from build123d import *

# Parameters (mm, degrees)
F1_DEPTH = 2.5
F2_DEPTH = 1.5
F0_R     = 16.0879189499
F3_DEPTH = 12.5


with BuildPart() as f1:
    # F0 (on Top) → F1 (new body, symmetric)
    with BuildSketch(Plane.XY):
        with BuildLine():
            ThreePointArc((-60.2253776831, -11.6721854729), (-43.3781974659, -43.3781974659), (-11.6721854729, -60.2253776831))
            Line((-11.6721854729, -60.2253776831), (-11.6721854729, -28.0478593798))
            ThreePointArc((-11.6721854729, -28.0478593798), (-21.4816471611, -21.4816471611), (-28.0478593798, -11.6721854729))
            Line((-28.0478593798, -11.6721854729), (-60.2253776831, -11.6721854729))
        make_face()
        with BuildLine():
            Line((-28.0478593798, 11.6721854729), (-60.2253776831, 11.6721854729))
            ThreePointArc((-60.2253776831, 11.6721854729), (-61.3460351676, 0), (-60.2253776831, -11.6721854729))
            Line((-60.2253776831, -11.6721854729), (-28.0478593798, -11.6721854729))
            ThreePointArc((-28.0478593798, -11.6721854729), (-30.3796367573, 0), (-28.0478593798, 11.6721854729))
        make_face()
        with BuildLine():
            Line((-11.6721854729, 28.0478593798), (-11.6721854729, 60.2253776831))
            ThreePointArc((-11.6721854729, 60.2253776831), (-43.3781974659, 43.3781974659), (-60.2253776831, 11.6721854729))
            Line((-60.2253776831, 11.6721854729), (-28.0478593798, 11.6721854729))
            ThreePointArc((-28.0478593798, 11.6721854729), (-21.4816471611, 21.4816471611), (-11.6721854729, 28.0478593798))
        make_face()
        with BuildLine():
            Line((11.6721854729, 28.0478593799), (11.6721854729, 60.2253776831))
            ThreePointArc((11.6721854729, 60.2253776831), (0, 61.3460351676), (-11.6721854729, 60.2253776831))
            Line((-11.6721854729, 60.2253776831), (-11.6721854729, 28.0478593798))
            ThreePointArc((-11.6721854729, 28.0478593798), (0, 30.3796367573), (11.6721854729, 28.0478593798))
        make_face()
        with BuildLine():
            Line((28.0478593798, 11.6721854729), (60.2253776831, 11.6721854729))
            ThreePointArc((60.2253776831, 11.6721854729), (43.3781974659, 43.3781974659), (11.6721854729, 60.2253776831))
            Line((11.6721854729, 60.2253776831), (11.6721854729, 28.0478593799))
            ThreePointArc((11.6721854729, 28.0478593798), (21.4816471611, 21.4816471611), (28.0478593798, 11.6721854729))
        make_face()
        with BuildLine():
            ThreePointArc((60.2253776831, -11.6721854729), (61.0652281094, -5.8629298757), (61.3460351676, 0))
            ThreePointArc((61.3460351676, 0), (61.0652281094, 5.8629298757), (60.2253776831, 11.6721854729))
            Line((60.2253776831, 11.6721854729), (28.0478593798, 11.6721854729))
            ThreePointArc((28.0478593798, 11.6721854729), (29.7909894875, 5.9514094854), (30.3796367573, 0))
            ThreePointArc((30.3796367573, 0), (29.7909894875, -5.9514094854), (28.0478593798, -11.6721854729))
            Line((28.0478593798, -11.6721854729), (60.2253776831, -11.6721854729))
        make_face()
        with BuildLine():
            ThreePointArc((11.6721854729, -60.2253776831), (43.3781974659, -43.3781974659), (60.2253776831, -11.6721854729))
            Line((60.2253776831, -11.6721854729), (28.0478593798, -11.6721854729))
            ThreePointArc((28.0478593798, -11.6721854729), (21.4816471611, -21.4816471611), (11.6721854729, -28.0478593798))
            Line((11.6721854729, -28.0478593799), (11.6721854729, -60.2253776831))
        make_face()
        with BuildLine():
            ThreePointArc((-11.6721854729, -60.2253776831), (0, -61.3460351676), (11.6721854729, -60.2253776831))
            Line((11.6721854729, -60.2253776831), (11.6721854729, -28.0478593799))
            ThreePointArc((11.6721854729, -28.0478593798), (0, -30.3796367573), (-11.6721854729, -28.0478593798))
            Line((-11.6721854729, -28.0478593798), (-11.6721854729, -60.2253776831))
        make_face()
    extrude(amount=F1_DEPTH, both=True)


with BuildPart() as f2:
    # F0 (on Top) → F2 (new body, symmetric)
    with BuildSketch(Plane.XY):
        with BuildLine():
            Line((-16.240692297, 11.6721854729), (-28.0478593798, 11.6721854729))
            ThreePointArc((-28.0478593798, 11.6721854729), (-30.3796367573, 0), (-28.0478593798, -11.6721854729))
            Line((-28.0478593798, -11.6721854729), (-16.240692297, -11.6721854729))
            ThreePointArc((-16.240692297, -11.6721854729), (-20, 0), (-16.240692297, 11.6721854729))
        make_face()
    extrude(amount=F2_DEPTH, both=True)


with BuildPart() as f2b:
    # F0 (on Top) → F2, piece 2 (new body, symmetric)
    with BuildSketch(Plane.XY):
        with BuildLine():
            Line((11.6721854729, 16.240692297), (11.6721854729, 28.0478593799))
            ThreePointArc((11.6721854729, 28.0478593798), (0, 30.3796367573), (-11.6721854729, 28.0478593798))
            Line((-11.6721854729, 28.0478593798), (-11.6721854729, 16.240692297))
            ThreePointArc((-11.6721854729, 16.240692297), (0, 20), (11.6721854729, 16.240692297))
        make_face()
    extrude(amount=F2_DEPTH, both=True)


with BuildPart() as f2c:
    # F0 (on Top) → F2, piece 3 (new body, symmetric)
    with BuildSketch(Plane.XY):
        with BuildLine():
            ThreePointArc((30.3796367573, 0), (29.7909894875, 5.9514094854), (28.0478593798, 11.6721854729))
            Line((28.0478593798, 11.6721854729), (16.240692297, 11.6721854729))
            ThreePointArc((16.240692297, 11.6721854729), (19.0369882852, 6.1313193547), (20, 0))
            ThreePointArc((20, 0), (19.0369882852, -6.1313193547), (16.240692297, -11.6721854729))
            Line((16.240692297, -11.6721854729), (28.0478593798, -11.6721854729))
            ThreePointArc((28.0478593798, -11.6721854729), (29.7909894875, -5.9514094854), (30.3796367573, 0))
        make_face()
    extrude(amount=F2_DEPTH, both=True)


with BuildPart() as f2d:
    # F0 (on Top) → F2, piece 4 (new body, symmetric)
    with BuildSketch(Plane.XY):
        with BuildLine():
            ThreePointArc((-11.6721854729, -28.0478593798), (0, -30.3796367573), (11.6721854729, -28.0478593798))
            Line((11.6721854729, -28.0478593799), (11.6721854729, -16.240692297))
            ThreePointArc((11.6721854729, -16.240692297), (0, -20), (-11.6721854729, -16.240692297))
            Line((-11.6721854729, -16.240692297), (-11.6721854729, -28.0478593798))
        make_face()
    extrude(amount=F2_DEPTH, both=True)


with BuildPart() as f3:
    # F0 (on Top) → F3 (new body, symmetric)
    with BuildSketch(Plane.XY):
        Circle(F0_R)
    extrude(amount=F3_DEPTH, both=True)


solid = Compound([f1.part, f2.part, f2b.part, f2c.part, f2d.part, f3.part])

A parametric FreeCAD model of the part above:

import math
import FreeCAD as App
import Part
import Sketcher

V = App.Vector

doc = App.newDocument("Part")
body = doc.addObject("PartDesign::Body", "Body")

# Sketch on XY plane
sketch1 = body.newObject("Sketcher::SketchObject", "Sketch")
sketch1.AttachmentSupport = (doc.getObject("XY_Plane"), [""])
sketch1.MapMode = "FlatFace"
sketch1.addGeometry(Part.ArcOfCircle(Part.Circle(V(0, 0, 0), V(0, 0, 1), 61), math.radians(-169), math.radians(-101)), False)
sketch1.addGeometry(Part.ArcOfCircle(Part.Circle(V(0, 0, 0), V(0, 0, 1), 61), math.radians(-101), math.radians(-79)), False)
sketch1.addGeometry(Part.ArcOfCircle(Part.Circle(V(0, 0, 0), V(0, 0, 1), 61), math.radians(-79), math.radians(-11)), False)
sketch1.addGeometry(Part.ArcOfCircle(Part.Circle(V(0, 0, 0), V(0, 0, 1), 61), math.radians(-10.97), math.radians(0)), False)
sketch1.addGeometry(Part.ArcOfCircle(Part.Circle(V(0, 0, 0), V(0, 0, 1), 61), math.radians(0), math.radians(10.97)), False)
sketch1.addGeometry(Part.ArcOfCircle(Part.Circle(V(0, 0, 0), V(0, 0, 1), 61), math.radians(11), math.radians(79)), False)
sketch1.addGeometry(Part.ArcOfCircle(Part.Circle(V(0, 0, 0), V(0, 0, 1), 61), math.radians(79), math.radians(101)), False)
sketch1.addGeometry(Part.ArcOfCircle(Part.Circle(V(0, 0, 0), V(0, 0, 1), 61), math.radians(101), math.radians(169)), False)
sketch1.addGeometry(Part.ArcOfCircle(Part.Circle(V(0, 0, 0), V(0, 0, 1), 61), math.radians(169), math.radians(191)), False)
sketch1.addGeometry(Part.ArcOfCircle(Part.Circle(V(0, 0, 0), V(0, 0, 1), 30), math.radians(-157), math.radians(-113)), False)
sketch1.addGeometry(Part.ArcOfCircle(Part.Circle(V(0, 0, 0), V(0, 0, 1), 30), math.radians(157), math.radians(203)), False)
sketch1.addGeometry(Part.ArcOfCircle(Part.Circle(V(0, 0, 0), V(0, 0, 1), 30), math.radians(113), math.radians(157)), False)
sketch1.addGeometry(Part.ArcOfCircle(Part.Circle(V(0, 0, 0), V(0, 0, 1), 30), math.radians(67), math.radians(113)), False)
sketch1.addGeometry(Part.ArcOfCircle(Part.Circle(V(0, 0, 0), V(0, 0, 1), 30), math.radians(23), math.radians(67)), False)
sketch1.addGeometry(Part.ArcOfCircle(Part.Circle(V(0, 0, 0), V(0, 0, 1), 30), math.radians(0), math.radians(23)), False)
sketch1.addGeometry(Part.ArcOfCircle(Part.Circle(V(0, 0, 0), V(0, 0, 1), 30), math.radians(-23), math.radians(0)), False)
sketch1.addGeometry(Part.ArcOfCircle(Part.Circle(V(0, 0, 0), V(0, 0, 1), 30), math.radians(-67), math.radians(-23)), False)
sketch1.addGeometry(Part.ArcOfCircle(Part.Circle(V(0, 0, 0), V(0, 0, 1), 30), math.radians(-113), math.radians(-67)), False)
sketch1.addConstraint(Sketcher.Constraint("Tangent", 0, 2, 1, 1))
sketch1.addConstraint(Sketcher.Constraint("Tangent", 1, 2, 2, 1))
sketch1.addConstraint(Sketcher.Constraint("Tangent", 2, 2, 3, 1))
sketch1.addConstraint(Sketcher.Constraint("Tangent", 3, 2, 4, 1))
sketch1.addConstraint(Sketcher.Constraint("Tangent", 4, 2, 5, 1))
sketch1.addConstraint(Sketcher.Constraint("Tangent", 5, 2, 6, 1))
sketch1.addConstraint(Sketcher.Constraint("Tangent", 6, 2, 7, 1))
sketch1.addConstraint(Sketcher.Constraint("Tangent", 7, 2, 8, 1))
sketch1.addConstraint(Sketcher.Constraint("Tangent", 8, 2, 0, 1))
sketch1.addConstraint(Sketcher.Constraint("Tangent", 9, 1, 10, 2))
sketch1.addConstraint(Sketcher.Constraint("Tangent", 10, 1, 11, 2))
sketch1.addConstraint(Sketcher.Constraint("Tangent", 11, 1, 12, 2))
sketch1.addConstraint(Sketcher.Constraint("Tangent", 12, 1, 13, 2))
sketch1.addConstraint(Sketcher.Constraint("Tangent", 13, 1, 14, 2))
sketch1.addConstraint(Sketcher.Constraint("Tangent", 14, 1, 15, 2))
sketch1.addConstraint(Sketcher.Constraint("Tangent", 15, 1, 16, 2))
sketch1.addConstraint(Sketcher.Constraint("Tangent", 16, 1, 17, 2))
sketch1.addConstraint(Sketcher.Constraint("Tangent", 17, 1, 9, 2))
sketch1.addConstraint(Sketcher.Constraint("Coincident", 0, 3, -1, 1))
sketch1.addConstraint(Sketcher.Constraint("Coincident", 2, 3, -1, 1))
sketch1.addConstraint(Sketcher.Constraint("Coincident", 4, 3, -1, 1))
sketch1.addConstraint(Sketcher.Constraint("Coincident", 6, 3, -1, 1))
sketch1.addConstraint(Sketcher.Constraint("Coincident", 9, 3, -1, 1))
sketch1.addConstraint(Sketcher.Constraint("Coincident", 11, 3, -1, 1))
sketch1.addConstraint(Sketcher.Constraint("Coincident", 13, 3, -1, 1))
sketch1.addConstraint(Sketcher.Constraint("Coincident", 15, 3, -1, 1))
sketch1.addConstraint(Sketcher.Constraint("PointOnObject", 3, 2, -1))
sketch1.addConstraint(Sketcher.Constraint("PointOnObject", 14, 1, -1))
sketch1.addConstraint(Sketcher.Constraint("Horizontal", 0, 2, 1, 2))
sketch1.addConstraint(Sketcher.Constraint("Horizontal", 5, 2, 6, 2))
sketch1.addConstraint(Sketcher.Constraint("Horizontal", 4, 2, 7, 2))
sketch1.addConstraint(Sketcher.Constraint("Horizontal", 2, 2, 8, 2))
sketch1.addConstraint(Sketcher.Constraint("Horizontal", 8, 2, 9, 1))
sketch1.addConstraint(Sketcher.Constraint("Horizontal", 7, 2, 10, 1))
sketch1.addConstraint(Sketcher.Constraint("Horizontal", 11, 1, 12, 1))
sketch1.addConstraint(Sketcher.Constraint("Horizontal", 10, 1, 13, 1))
sketch1.addConstraint(Sketcher.Constraint("Horizontal", 9, 1, 15, 1))
sketch1.addConstraint(Sketcher.Constraint("Horizontal", 16, 1, 17, 1))
sketch1.addConstraint(Sketcher.Constraint("Vertical", 2, 2, 4, 2))
sketch1.addConstraint(Sketcher.Constraint("Vertical", 1, 2, 5, 2))
sketch1.addConstraint(Sketcher.Constraint("Vertical", 6, 2, 11, 1))
sketch1.addConstraint(Sketcher.Constraint("Vertical", 12, 1, 16, 1))
sketch1.addConstraint(Sketcher.Constraint("Radius", 0, 61.346035))
sketch1.addConstraint(Sketcher.Constraint("Radius", 9, 30.379637))
sketch1.addConstraint(Sketcher.Constraint("DistanceX", 9, 1, -1, 1, 28.047859))
sketch1.addConstraint(Sketcher.Constraint("DistanceY", -1, 1, 11, 1, 28.047859))
pad1 = body.newObject("PartDesign::Pad", "Pad")
pad1.Profile = sketch1
pad1.Length = 5
pad1.Midplane = True
body2 = doc.addObject("PartDesign::Body", "Body001")

# Sketch on XY plane
sketch2 = body2.newObject("Sketcher::SketchObject", "Sketch001")
sketch2.AttachmentSupport = (doc.getObject("XY_Plane001"), [""])
sketch2.MapMode = "FlatFace"
sketch2.addGeometry(Part.LineSegment(V(-16, 12, 0), V(-28, 12, 0)), False)
sketch2.addGeometry(Part.ArcOfCircle(Part.Circle(V(0, 0, 0), V(0, 0, 1), 30), math.radians(157), math.radians(203)), False)
sketch2.addGeometry(Part.LineSegment(V(-28, -12, 0), V(-16, -12, 0)), False)
sketch2.addGeometry(Part.ArcOfCircle(Part.Circle(V(0, 0, 0), V(0, 0, 1), 20), math.radians(144), math.radians(216)), False)
sketch2.addConstraint(Sketcher.Constraint("Coincident", 0, 2, 1, 1))
sketch2.addConstraint(Sketcher.Constraint("Coincident", 1, 2, 2, 1))
sketch2.addConstraint(Sketcher.Constraint("Coincident", 2, 2, 3, 2))
sketch2.addConstraint(Sketcher.Constraint("Coincident", 3, 1, 0, 1))
sketch2.addConstraint(Sketcher.Constraint("Horizontal", 0))
sketch2.addConstraint(Sketcher.Constraint("Horizontal", 2))
sketch2.addConstraint(Sketcher.Constraint("Coincident", 1, 3, -1, 1))
sketch2.addConstraint(Sketcher.Constraint("Coincident", 3, 3, -1, 1))
sketch2.addConstraint(Sketcher.Constraint("Vertical", 0, 2, 1, 2))
sketch2.addConstraint(Sketcher.Constraint("Radius", 3, 20.0))
sketch2.addConstraint(Sketcher.Constraint("Radius", 1, 30.379637))
sketch2.addConstraint(Sketcher.Constraint("DistanceX", 0, 2, 0, 1, 11.807167))
pad2 = body2.newObject("PartDesign::Pad", "Pad001")
pad2.Profile = sketch2
pad2.Length = 3
pad2.Midplane = True
body3 = doc.addObject("PartDesign::Body", "Body002")

# Sketch on XY plane
sketch3 = body3.newObject("Sketcher::SketchObject", "Sketch002")
sketch3.AttachmentSupport = (doc.getObject("XY_Plane002"), [""])
sketch3.MapMode = "FlatFace"
sketch3.addGeometry(Part.LineSegment(V(12, 16, 0), V(12, 28, 0)), False)
sketch3.addGeometry(Part.ArcOfCircle(Part.Circle(V(0, 0, 0), V(0, 0, 1), 30), math.radians(67), math.radians(113)), False)
sketch3.addGeometry(Part.LineSegment(V(-12, 28, 0), V(-12, 16, 0)), False)
sketch3.addGeometry(Part.ArcOfCircle(Part.Circle(V(0, 0, 0), V(0, 0, 1), 20), math.radians(54), math.radians(126)), False)
sketch3.addConstraint(Sketcher.Constraint("Coincident", 0, 2, 1, 1))
sketch3.addConstraint(Sketcher.Constraint("Coincident", 1, 2, 2, 1))
sketch3.addConstraint(Sketcher.Constraint("Coincident", 2, 2, 3, 2))
sketch3.addConstraint(Sketcher.Constraint("Coincident", 3, 1, 0, 1))
sketch3.addConstraint(Sketcher.Constraint("Vertical", 0))
sketch3.addConstraint(Sketcher.Constraint("Vertical", 2))
sketch3.addConstraint(Sketcher.Constraint("Coincident", 1, 3, -1, 1))
sketch3.addConstraint(Sketcher.Constraint("Coincident", 3, 3, -1, 1))
sketch3.addConstraint(Sketcher.Constraint("Horizontal", 0, 2, 1, 2))
sketch3.addConstraint(Sketcher.Constraint("Radius", 3, 20.0))
sketch3.addConstraint(Sketcher.Constraint("Radius", 1, 30.379637))
sketch3.addConstraint(Sketcher.Constraint("DistanceY", 0, 1, 0, 2, 11.807167))
pad3 = body3.newObject("PartDesign::Pad", "Pad002")
pad3.Profile = sketch3
pad3.Length = 3
pad3.Midplane = True
body4 = doc.addObject("PartDesign::Body", "Body003")

# Sketch on XY plane
sketch4 = body4.newObject("Sketcher::SketchObject", "Sketch003")
sketch4.AttachmentSupport = (doc.getObject("XY_Plane003"), [""])
sketch4.MapMode = "FlatFace"
sketch4.addGeometry(Part.ArcOfCircle(Part.Circle(V(0, 0, 0), V(0, 0, 1), 30), math.radians(0), math.radians(23)), False)
sketch4.addGeometry(Part.LineSegment(V(28, 12, 0), V(16, 12, 0)), False)
sketch4.addGeometry(Part.ArcOfCircle(Part.Circle(V(0, 0, 0), V(0, 0, 1), 20), math.radians(0), math.radians(36)), False)
sketch4.addGeometry(Part.ArcOfCircle(Part.Circle(V(0, 0, 0), V(0, 0, 1), 20), math.radians(-36), math.radians(0)), False)
sketch4.addGeometry(Part.LineSegment(V(16, -12, 0), V(28, -12, 0)), False)
sketch4.addGeometry(Part.ArcOfCircle(Part.Circle(V(0, 0, 0), V(0, 0, 1), 30), math.radians(-23), math.radians(0)), False)
sketch4.addConstraint(Sketcher.Constraint("Coincident", 0, 2, 1, 1))
sketch4.addConstraint(Sketcher.Constraint("Coincident", 1, 2, 2, 2))
sketch4.addConstraint(Sketcher.Constraint("Tangent", 2, 1, 3, 2))
sketch4.addConstraint(Sketcher.Constraint("Coincident", 3, 1, 4, 1))
sketch4.addConstraint(Sketcher.Constraint("Coincident", 4, 2, 5, 1))
sketch4.addConstraint(Sketcher.Constraint("Tangent", 5, 2, 0, 1))
sketch4.addConstraint(Sketcher.Constraint("Horizontal", 1))
sketch4.addConstraint(Sketcher.Constraint("Horizontal", 4))
sketch4.addConstraint(Sketcher.Constraint("Coincident", 0, 3, -1, 1))
sketch4.addConstraint(Sketcher.Constraint("Coincident", 2, 3, -1, 1))
sketch4.addConstraint(Sketcher.Constraint("Equal", 2, 3))
sketch4.addConstraint(Sketcher.Constraint("Equal", 0, 5))
sketch4.addConstraint(Sketcher.Constraint("PointOnObject", 2, 1, -1))
sketch4.addConstraint(Sketcher.Constraint("PointOnObject", 5, 2, -1))
sketch4.addConstraint(Sketcher.Constraint("Vertical", 1, 2, 3, 1))
sketch4.addConstraint(Sketcher.Constraint("Radius", 2, 20.0))
sketch4.addConstraint(Sketcher.Constraint("Radius", 0, 30.379637))
sketch4.addConstraint(Sketcher.Constraint("DistanceX", 1, 2, 1, 1, 11.807167))
pad4 = body4.newObject("PartDesign::Pad", "Pad003")
pad4.Profile = sketch4
pad4.Length = 3
pad4.Midplane = True
body5 = doc.addObject("PartDesign::Body", "Body004")

# Sketch on XY plane
sketch5 = body5.newObject("Sketcher::SketchObject", "Sketch004")
sketch5.AttachmentSupport = (doc.getObject("XY_Plane004"), [""])
sketch5.MapMode = "FlatFace"
sketch5.addGeometry(Part.ArcOfCircle(Part.Circle(V(0, 0, 0), V(0, 0, 1), 30), math.radians(-113), math.radians(-67)), False)
sketch5.addGeometry(Part.LineSegment(V(12, -28, 0), V(12, -16, 0)), False)
sketch5.addGeometry(Part.ArcOfCircle(Part.Circle(V(0, 0, 0), V(0, 0, 1), 20), math.radians(-126), math.radians(-54)), False)
sketch5.addGeometry(Part.LineSegment(V(-12, -16, 0), V(-12, -28, 0)), False)
sketch5.addConstraint(Sketcher.Constraint("Coincident", 0, 2, 1, 1))
sketch5.addConstraint(Sketcher.Constraint("Coincident", 1, 2, 2, 2))
sketch5.addConstraint(Sketcher.Constraint("Coincident", 2, 1, 3, 1))
sketch5.addConstraint(Sketcher.Constraint("Coincident", 3, 2, 0, 1))
sketch5.addConstraint(Sketcher.Constraint("Vertical", 1))
sketch5.addConstraint(Sketcher.Constraint("Vertical", 3))
sketch5.addConstraint(Sketcher.Constraint("Coincident", 0, 3, -1, 1))
sketch5.addConstraint(Sketcher.Constraint("Coincident", 2, 3, -1, 1))
sketch5.addConstraint(Sketcher.Constraint("Horizontal", 1, 2, 2, 1))
sketch5.addConstraint(Sketcher.Constraint("Radius", 2, 20.0))
sketch5.addConstraint(Sketcher.Constraint("Radius", 0, 30.379637))
sketch5.addConstraint(Sketcher.Constraint("DistanceY", 1, 1, 1, 2, 11.807167))
pad5 = body5.newObject("PartDesign::Pad", "Pad004")
pad5.Profile = sketch5
pad5.Length = 3
pad5.Midplane = True
body6 = doc.addObject("PartDesign::Body", "Body005")

# Sketch on XY plane
sketch6 = body6.newObject("Sketcher::SketchObject", "Sketch005")
sketch6.AttachmentSupport = (doc.getObject("XY_Plane005"), [""])
sketch6.MapMode = "FlatFace"
sketch6.addGeometry(Part.Circle(V(0, 0, 0), V(0, 0, 1), 16), False)
sketch6.addConstraint(Sketcher.Constraint("Coincident", 0, 3, -1, 1))
sketch6.addConstraint(Sketcher.Constraint("Diameter", 0, 32.175838))
pad6 = body6.newObject("PartDesign::Pad", "Pad005")
pad6.Profile = sketch6
pad6.Length = 25
pad6.Midplane = True

doc.recompute()
